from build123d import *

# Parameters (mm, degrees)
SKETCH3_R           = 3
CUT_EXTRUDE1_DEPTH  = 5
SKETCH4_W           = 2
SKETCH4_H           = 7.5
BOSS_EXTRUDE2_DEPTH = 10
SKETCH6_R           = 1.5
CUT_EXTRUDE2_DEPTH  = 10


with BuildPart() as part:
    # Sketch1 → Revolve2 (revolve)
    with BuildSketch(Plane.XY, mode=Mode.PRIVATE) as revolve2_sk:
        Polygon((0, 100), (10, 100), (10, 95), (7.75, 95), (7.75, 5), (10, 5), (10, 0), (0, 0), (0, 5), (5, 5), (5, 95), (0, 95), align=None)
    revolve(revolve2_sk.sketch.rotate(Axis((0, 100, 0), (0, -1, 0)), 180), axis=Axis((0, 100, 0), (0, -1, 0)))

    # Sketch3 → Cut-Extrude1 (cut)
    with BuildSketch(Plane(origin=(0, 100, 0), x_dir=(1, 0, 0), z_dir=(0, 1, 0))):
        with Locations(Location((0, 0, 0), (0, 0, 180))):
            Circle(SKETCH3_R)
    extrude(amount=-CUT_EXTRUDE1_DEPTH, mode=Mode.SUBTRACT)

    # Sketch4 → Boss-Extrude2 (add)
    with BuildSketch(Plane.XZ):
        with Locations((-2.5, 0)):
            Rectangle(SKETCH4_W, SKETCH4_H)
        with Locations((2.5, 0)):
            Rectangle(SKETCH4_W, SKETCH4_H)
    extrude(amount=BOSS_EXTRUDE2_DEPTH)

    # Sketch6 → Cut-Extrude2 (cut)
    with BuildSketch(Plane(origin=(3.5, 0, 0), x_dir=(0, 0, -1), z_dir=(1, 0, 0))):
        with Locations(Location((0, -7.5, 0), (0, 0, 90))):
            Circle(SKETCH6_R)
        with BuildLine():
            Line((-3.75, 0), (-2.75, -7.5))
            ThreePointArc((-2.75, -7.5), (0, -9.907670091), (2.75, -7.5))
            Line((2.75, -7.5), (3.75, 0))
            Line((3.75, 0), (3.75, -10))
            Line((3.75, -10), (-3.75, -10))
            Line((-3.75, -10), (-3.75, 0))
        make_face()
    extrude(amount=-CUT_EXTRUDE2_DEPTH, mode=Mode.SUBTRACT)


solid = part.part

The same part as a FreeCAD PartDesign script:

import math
import FreeCAD as App
import Part
import Sketcher
Q = App.Units.Quantity

doc = App.newDocument("Part")
body = doc.addObject("PartDesign::Body", "Body")

# Sketch on XY plane
sketch1 = body.newObject("Sketcher::SketchObject", "Sketch")
sketch1.AttachmentSupport = (doc.getObject("XY_Plane"), [""])
sketch1.MapMode = "FlatFace"
sketch1.addGeometry([
    Part.LineSegment(App.Vector(10, 100, 0), App.Vector(0, 100, 0)),  # 0
    Part.LineSegment(App.Vector(0, 100, 0), App.Vector(0, 95, 0)),  # 1
    Part.LineSegment(App.Vector(0, 95, 0), App.Vector(5, 95, 0)),  # 2
    Part.LineSegment(App.Vector(5, 95, 0), App.Vector(5, 5, 0)),  # 3
    Part.LineSegment(App.Vector(5, 5, 0), App.Vector(0, 5, 0)),  # 4
    Part.LineSegment(App.Vector(0, 5, 0), App.Vector(0, 0, 0)),  # 5
    Part.LineSegment(App.Vector(0, 0, 0), App.Vector(10, 0, 0)),  # 6
    Part.LineSegment(App.Vector(10, 0, 0), App.Vector(10, 5, 0)),  # 7
    Part.LineSegment(App.Vector(10, 5, 0), App.Vector(7.75, 5, 0)),  # 8
    Part.LineSegment(App.Vector(7.75, 5, 0), App.Vector(7.75, 95, 0)),  # 9
    Part.LineSegment(App.Vector(7.75, 95, 0), App.Vector(10, 95, 0)),  # 10
    Part.LineSegment(App.Vector(10, 95, 0), App.Vector(10, 100, 0)),  # 11
], False)
sketch1.addConstraint([
    Sketcher.Constraint("Coincident", 0, 2, 1, 1),
    Sketcher.Constraint("Coincident", 1, 2, 2, 1),
    Sketcher.Constraint("Coincident", 2, 2, 3, 1),
    Sketcher.Constraint("Coincident", 3, 2, 4, 1),
    Sketcher.Constraint("Coincident", 4, 2, 5, 1),
    Sketcher.Constraint("Coincident", 5, 2, 6, 1),
    Sketcher.Constraint("Coincident", 6, 2, 7, 1),
    Sketcher.Constraint("Coincident", 7, 2, 8, 1),
    Sketcher.Constraint("Coincident", 8, 2, 9, 1),
    Sketcher.Constraint("Coincident", 9, 2, 10, 1),
    Sketcher.Constraint("Coincident", 10, 2, 11, 1),
    Sketcher.Constraint("Coincident", 11, 2, 0, 1),
    Sketcher.Constraint("Horizontal", 0),
    Sketcher.Constraint("Vertical", 1),
    Sketcher.Constraint("Horizontal", 2),
    Sketcher.Constraint("Vertical", 3),
    Sketcher.Constraint("Horizontal", 4),
    Sketcher.Constraint("Vertical", 5),
    Sketcher.Constraint("Horizontal", 6),
    Sketcher.Constraint("Vertical", 7),
    Sketcher.Constraint("Horizontal", 8),
    Sketcher.Constraint("Vertical", 9),
    Sketcher.Constraint("Horizontal", 10),
    Sketcher.Constraint("Vertical", 11),
    Sketcher.Constraint("Coincident", 5, 2, -1, 1),
    Sketcher.Constraint("PointOnObject", 0, 2, -2),
    Sketcher.Constraint("Horizontal", 4, 2, 7, 2),
    Sketcher.Constraint("Horizontal", 2, 2, 9, 2),
    Sketcher.Constraint("Vertical", 7, 2, 10, 2),
    Sketcher.Constraint("Equal", 4, 1),
    Sketcher.Constraint("Equal", 1, 5),
    Sketcher.Constraint("DistanceX", 0, 2, 0, 1, Q("10 mm")),
    Sketcher.Constraint("DistanceX", 2, 1, 2, 2, Q("5 mm")),
    Sketcher.Constraint("DistanceY", 3, 2, 3, 1, Q("90 mm")),
    Sketcher.Constraint("DistanceX", 8, 2, 8, 1, Q("2.25 mm")),
])
revolution = body.newObject("PartDesign::Revolution", "Revolution")
revolution.Profile = sketch1
revolution.ReferenceAxis = (sketch1, ["V_Axis"])
revolution.Angle = 360

# Sketch on XZ plane
sketch2 = body.newObject("Sketcher::SketchObject", "Sketch001")
sketch2.AttachmentSupport = (doc.getObject("XZ_Plane"), [""])
sketch2.MapMode = "FlatFace"
sketch2.AttachmentOffset = App.Placement(App.Vector(0, 0, -100), App.Rotation())
sketch2.addGeometry(Part.Circle(App.Vector(0, 0, 0), App.Vector(0, 0, 1), 3), False)
sketch2.addConstraint([
    Sketcher.Constraint("Coincident", 0, 3, -1, 1),
    Sketcher.Constraint("Diameter", 0, Q("6 mm")),
])
pocket1 = body.newObject("PartDesign::Pocket", "Pocket")
pocket1.Profile = sketch2
pocket1.Length = 5
pocket1.Reversed = True

# Sketch on XZ plane
sketch3 = body.newObject("Sketcher::SketchObject", "Sketch002")
sketch3.AttachmentSupport = (doc.getObject("XZ_Plane"), [""])
sketch3.MapMode = "FlatFace"
sketch3.addGeometry([
    Part.LineSegment(App.Vector(-3.5, 3.75, 0), App.Vector(-3.5, -3.75, 0)),  # 0
    Part.LineSegment(App.Vector(-3.5, -3.75, 0), App.Vector(-1.5, -3.75, 0)),  # 1
    Part.LineSegment(App.Vector(-1.5, -3.75, 0), App.Vector(-1.5, 3.75, 0)),  # 2
    Part.LineSegment(App.Vector(-1.5, 3.75, 0), App.Vector(-3.5, 3.75, 0)),  # 3
    Part.LineSegment(App.Vector(1.5, 3.75, 0), App.Vector(1.5, -3.75, 0)),  # 4
    Part.LineSegment(App.Vector(1.5, -3.75, 0), App.Vector(3.5, -3.75, 0)),  # 5
    Part.LineSegment(App.Vector(3.5, -3.75, 0), App.Vector(3.5, 3.75, 0)),  # 6
    Part.LineSegment(App.Vector(3.5, 3.75, 0), App.Vector(1.5, 3.75, 0)),  # 7
], False)
sketch3.addConstraint([
    Sketcher.Constraint("Coincident", 0, 2, 1, 1),
    Sketcher.Constraint("Coincident", 1, 2, 2, 1),
    Sketcher.Constraint("Coincident", 2, 2, 3, 1),
    Sketcher.Constraint("Coincident", 3, 2, 0, 1),
    Sketcher.Constraint("Coincident", 4, 2, 5, 1),
    Sketcher.Constraint("Coincident", 5, 2, 6, 1),
    Sketcher.Constraint("Coincident", 6, 2, 7, 1),
    Sketcher.Constraint("Coincident", 7, 2, 4, 1),
    Sketcher.Constraint("Vertical", 0),
    Sketcher.Constraint("Horizontal", 1),
    Sketcher.Constraint("Vertical", 2),
    Sketcher.Constraint("Horizontal", 3),
    Sketcher.Constraint("Vertical", 4),
    Sketcher.Constraint("Horizontal", 5),
    Sketcher.Constraint("Vertical", 6),
    Sketcher.Constraint("Horizontal", 7),
    Sketcher.Constraint("Symmetric", 2, 2, 4, 2, -1, 1),
    Sketcher.Constraint("Symmetric", 0, 2, 6, 2, -1, 1),
    Sketcher.Constraint("Horizontal", 1, 2, 4, 2),
    Sketcher.Constraint("DistanceX", 1, 1, 1, 2, Q("2 mm")),
    Sketcher.Constraint("DistanceY", 0, 2, 0, 1, Q("7.5 mm")),
    Sketcher.Constraint("DistanceX", 1, 2, 4, 2, Q("3 mm")),
])
pad1 = body.newObject("PartDesign::Pad", "Pad")
pad1.Profile = sketch3
pad1.Length = 10

# Sketch on YZ plane
sketch4 = body.newObject("Sketcher::SketchObject", "Sketch003")
sketch4.AttachmentSupport = (doc.getObject("YZ_Plane"), [""])
sketch4.MapMode = "FlatFace"
sketch4.AttachmentOffset = App.Placement(App.Vector(0, 0, 3.5), App.Rotation())
sketch4.addGeometry([
    Part.Circle(App.Vector(-7.5, 0, 0), App.Vector(0, 0, 1), 1.5),  # 0
    Part.LineSegment(App.Vector(-7.5, 2.75, 0), App.Vector(0, 3.75, 0)),  # 1
    Part.LineSegment(App.Vector(0, 3.75, 0), App.Vector(-10, 3.75, 0)),  # 2
    Part.LineSegment(App.Vector(-10, 3.75, 0), App.Vector(-10, -3.75, 0)),  # 3
    Part.LineSegment(App.Vector(-10, -3.75, 0), App.Vector(0, -3.75, 0)),  # 4
    Part.LineSegment(App.Vector(0, -3.75, 0), App.Vector(-7.5, -2.75, 0)),  # 5
    Part.ArcOfCircle(Part.Circle(App.Vector(-7.133333, 0, 0), App.Vector(0, 0, 1), 2.774337), math.radians(97.594643), math.radians(262.405357)),  # 6
], False)
sketch4.addConstraint([
    Sketcher.Constraint("Coincident", 1, 2, 2, 1),
    Sketcher.Constraint("Coincident", 2, 2, 3, 1),
    Sketcher.Constraint("Coincident", 3, 2, 4, 1),
    Sketcher.Constraint("Coincident", 4, 2, 5, 1),
    Sketcher.Constraint("Tangent", 5, 2, 6, 2),
    Sketcher.Constraint("Tangent", 6, 1, 1, 1),
    Sketcher.Constraint("Horizontal", 2),
    Sketcher.Constraint("Vertical", 3),
    Sketcher.Constraint("Horizontal", 4),
    Sketcher.Constraint("Symmetric", 1, 2, 4, 2, -1, 1),
    Sketcher.Constraint("Symmetric", 5, 2, 6, 1, -1),
    Sketcher.Constraint("PointOnObject", 0, 3, -1),
    Sketcher.Constraint("Vertical", 0, 3, 5, 2),
    Sketcher.Constraint("Diameter", 0, Q("3 mm")),
    Sketcher.Constraint("DistanceX", 2, 2, 2, 1, Q("10 mm")),
    Sketcher.Constraint("DistanceY", 3, 2, 3, 1, Q("7.5 mm")),
    Sketcher.Constraint("DistanceY", 3, 2, 5, 2, Q("1 mm")),
    Sketcher.Constraint("DistanceX", 0, 3, -1, 1, Q("7.5 mm")),
])
pocket2 = body.newObject("PartDesign::Pocket", "Pocket001")
pocket2.Profile = sketch4
pocket2.Length = 10

doc.recompute()
